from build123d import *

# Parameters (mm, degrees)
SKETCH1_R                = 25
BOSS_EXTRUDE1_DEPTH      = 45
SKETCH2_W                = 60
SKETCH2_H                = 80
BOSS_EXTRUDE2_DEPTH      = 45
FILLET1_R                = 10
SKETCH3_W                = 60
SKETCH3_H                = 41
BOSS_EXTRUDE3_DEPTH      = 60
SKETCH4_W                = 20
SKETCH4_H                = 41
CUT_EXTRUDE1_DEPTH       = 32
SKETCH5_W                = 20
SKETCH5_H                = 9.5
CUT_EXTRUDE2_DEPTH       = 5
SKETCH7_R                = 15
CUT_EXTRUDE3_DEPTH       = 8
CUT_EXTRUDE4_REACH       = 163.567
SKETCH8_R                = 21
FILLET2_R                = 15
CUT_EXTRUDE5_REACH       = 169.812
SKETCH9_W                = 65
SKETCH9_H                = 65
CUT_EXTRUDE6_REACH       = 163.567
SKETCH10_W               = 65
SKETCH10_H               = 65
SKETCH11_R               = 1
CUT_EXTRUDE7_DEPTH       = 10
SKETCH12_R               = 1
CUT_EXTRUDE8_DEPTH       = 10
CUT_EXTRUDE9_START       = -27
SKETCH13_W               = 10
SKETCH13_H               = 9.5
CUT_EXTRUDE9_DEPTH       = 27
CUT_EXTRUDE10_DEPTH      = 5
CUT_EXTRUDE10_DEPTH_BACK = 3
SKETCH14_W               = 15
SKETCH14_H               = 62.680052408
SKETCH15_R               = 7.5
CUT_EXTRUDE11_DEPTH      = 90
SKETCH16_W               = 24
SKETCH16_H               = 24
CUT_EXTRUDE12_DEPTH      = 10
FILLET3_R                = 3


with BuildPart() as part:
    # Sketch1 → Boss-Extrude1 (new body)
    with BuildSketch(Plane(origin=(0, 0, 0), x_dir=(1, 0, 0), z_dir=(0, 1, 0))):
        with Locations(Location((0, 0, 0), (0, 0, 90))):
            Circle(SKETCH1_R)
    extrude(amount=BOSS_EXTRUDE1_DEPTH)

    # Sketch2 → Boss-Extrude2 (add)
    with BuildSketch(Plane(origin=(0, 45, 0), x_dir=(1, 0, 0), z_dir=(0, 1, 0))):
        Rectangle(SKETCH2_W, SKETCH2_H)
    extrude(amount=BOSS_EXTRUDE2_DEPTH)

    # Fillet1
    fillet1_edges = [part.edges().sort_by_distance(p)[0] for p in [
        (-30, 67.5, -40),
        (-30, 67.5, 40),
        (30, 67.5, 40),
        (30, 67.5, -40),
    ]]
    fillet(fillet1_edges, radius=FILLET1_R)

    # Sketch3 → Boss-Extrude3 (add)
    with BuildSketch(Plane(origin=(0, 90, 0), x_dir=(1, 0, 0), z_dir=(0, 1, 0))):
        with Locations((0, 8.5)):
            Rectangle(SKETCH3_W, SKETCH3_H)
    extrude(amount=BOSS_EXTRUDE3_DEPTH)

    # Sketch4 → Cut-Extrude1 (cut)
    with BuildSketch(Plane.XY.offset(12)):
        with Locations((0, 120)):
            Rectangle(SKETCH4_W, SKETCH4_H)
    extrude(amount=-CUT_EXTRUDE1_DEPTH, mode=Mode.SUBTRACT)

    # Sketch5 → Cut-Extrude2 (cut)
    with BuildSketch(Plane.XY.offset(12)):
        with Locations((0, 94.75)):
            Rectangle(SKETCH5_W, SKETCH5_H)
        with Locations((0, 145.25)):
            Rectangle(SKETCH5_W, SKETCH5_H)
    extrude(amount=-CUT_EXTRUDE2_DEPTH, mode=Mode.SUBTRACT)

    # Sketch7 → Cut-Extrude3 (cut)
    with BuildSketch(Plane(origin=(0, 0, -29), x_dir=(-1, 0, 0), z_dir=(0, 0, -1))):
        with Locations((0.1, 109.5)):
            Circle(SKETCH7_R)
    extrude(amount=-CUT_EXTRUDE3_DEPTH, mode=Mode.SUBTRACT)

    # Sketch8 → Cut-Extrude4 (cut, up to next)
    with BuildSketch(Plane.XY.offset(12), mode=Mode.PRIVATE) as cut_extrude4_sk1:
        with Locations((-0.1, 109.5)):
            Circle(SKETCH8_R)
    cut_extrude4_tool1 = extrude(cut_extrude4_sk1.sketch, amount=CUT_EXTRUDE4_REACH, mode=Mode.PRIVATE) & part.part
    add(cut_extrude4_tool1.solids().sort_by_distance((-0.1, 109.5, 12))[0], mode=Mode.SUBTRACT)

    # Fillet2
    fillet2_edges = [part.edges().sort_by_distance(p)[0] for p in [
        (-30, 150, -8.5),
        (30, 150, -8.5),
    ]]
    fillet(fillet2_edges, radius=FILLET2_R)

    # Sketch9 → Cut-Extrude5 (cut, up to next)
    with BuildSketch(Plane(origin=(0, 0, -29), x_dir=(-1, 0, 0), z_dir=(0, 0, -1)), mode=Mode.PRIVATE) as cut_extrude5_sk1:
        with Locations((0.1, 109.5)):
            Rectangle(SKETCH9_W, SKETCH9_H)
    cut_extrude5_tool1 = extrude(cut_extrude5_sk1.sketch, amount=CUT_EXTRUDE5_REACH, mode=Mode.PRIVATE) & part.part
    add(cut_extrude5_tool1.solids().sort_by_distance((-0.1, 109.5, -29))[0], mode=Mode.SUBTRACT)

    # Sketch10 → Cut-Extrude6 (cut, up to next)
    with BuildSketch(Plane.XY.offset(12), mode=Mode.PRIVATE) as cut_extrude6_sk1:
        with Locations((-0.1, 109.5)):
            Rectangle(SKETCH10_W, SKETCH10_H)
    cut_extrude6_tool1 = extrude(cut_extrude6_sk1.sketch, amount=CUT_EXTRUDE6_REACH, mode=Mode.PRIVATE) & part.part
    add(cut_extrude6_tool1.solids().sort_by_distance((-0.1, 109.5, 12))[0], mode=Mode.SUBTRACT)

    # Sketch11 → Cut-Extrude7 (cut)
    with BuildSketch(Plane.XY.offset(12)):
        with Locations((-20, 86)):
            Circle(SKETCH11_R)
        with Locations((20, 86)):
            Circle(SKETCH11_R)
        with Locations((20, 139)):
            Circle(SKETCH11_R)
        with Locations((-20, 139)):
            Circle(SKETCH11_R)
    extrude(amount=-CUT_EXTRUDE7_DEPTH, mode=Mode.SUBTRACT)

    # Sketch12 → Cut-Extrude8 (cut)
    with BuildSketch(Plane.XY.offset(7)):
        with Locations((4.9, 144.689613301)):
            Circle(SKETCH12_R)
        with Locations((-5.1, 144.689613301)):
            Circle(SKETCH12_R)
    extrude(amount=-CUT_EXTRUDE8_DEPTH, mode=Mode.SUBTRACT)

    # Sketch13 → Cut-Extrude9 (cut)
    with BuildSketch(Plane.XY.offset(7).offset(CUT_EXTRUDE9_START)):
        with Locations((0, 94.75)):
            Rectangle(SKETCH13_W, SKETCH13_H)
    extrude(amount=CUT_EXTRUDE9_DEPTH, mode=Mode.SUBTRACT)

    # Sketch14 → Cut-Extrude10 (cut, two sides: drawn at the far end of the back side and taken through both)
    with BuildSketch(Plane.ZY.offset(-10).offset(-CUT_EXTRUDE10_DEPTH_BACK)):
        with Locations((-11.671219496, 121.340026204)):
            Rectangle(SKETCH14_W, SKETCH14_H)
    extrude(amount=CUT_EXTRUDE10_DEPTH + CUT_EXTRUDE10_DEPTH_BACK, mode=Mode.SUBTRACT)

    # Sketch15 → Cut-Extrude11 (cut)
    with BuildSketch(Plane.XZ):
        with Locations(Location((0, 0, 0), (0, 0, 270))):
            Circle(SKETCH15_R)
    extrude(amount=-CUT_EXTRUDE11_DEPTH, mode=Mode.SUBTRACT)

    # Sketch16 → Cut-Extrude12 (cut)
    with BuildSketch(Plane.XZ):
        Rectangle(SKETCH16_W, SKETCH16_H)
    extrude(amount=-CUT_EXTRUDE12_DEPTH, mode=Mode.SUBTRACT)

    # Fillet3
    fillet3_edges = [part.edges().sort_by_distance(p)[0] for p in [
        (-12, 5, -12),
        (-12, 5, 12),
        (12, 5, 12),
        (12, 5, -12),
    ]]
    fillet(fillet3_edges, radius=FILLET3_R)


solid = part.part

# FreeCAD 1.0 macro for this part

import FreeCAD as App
import Part
import Sketcher

V = App.Vector


def edges_at(feature, points):
    """Names of the edges that pass closest to the given points."""
    edges = feature.Shape.Edges
    near = lambda p: min(range(len(edges)), key=lambda i: edges[i].distToShape(Part.Vertex(*p))[0])
    return sorted({f"Edge{near(p) + 1}" for p in points})


def add_polygon(sketch, points):
    """Adds a closed chain of lines whose ends are joined by coincident constraints."""
    first, n = sketch.GeometryCount, len(points)
    for a, b in zip(points, points[1:] + points[:1]):
        sketch.addGeometry(Part.LineSegment(App.Vector(*a, 0), App.Vector(*b, 0)), False)
    for i in range(n):
        sketch.addConstraint(Sketcher.Constraint("Coincident", first + i, 2, first + (i + 1) % n, 1))

doc = App.newDocument("Part")
body = doc.addObject("PartDesign::Body", "Body")

sketch1 = body.newObject("Sketcher::SketchObject", "Sketch")
sketch1.AttachmentSupport = (doc.getObject("XZ_Plane"), [""])
sketch1.MapMode = "FlatFace"
sketch1.addGeometry(Part.Circle(V(0, 0, 0), V(0, 0, 1), 25), False)
sketch1.addConstraint([
    Sketcher.Constraint("Coincident", 0, 3, -1, 1),
    Sketcher.Constraint("Diameter", 0, 50.0),
])
pad1 = body.newObject("PartDesign::Pad", "Pad")
pad1.Profile = sketch1
pad1.Length = 45
pad1.Reversed = True

sketch2 = body.newObject("Sketcher::SketchObject", "Sketch001")
sketch2.AttachmentSupport = (doc.getObject("XZ_Plane"), [""])
sketch2.MapMode = "FlatFace"
sketch2.AttachmentOffset = App.Placement(V(0, 0, -45), App.Rotation())
add_polygon(sketch2, [(-30, -40), (-30, 40), (30, 40), (30, -40)])
sketch2.addConstraint([
    Sketcher.Constraint("Vertical", 0),
    Sketcher.Constraint("Horizontal", 1),
    Sketcher.Constraint("Vertical", 2),
    Sketcher.Constraint("Horizontal", 3),
    Sketcher.Constraint("Symmetric", 0, 2, 2, 2, -1, 1),
    Sketcher.Constraint("DistanceX", 1, 1, 1, 2, 60.0),
    Sketcher.Constraint("DistanceY", 0, 1, 0, 2, 80.0),
])
pad2 = body.newObject("PartDesign::Pad", "Pad001")
pad2.Profile = sketch2
pad2.Length = 45
pad2.Reversed = True
doc.recompute()

fillet = body.newObject("PartDesign::Fillet", "Fillet")
fillet.Base = (pad2, edges_at(pad2, [
    (-30, 67.5, -40),
    (-30, 67.5, 40),
    (30, 67.5, 40),
    (30, 67.5, -40),
]))
fillet.Radius = 10

sketch3 = body.newObject("Sketcher::SketchObject", "Sketch002")
sketch3.AttachmentSupport = (doc.getObject("XZ_Plane"), [""])
sketch3.MapMode = "FlatFace"
sketch3.AttachmentOffset = App.Placement(V(0, 0, -90), App.Rotation())
add_polygon(sketch3, [(-30, -29), (-30, 12), (30, 12), (30, -29)])
sketch3.addConstraint([
    Sketcher.Constraint("Vertical", 0),
    Sketcher.Constraint("Horizontal", 1),
    Sketcher.Constraint("Vertical", 2),
    Sketcher.Constraint("Horizontal", 3),
    Sketcher.Constraint("DistanceX", 1, 1, 1, 2, 60.0),
    Sketcher.Constraint("DistanceY", 0, 1, 0, 2, 41.0),
    Sketcher.Constraint("DistanceX", 0, 2, -1, 1, 30.0),
    Sketcher.Constraint("DistanceY", -1, 1, 0, 2, 12.0),
])
pad3 = body.newObject("PartDesign::Pad", "Pad002")
pad3.Profile = sketch3
pad3.Length = 60
pad3.Reversed = True

sketch4 = body.newObject("Sketcher::SketchObject", "Sketch003")
sketch4.AttachmentSupport = (doc.getObject("XY_Plane"), [""])
sketch4.MapMode = "FlatFace"
sketch4.AttachmentOffset = App.Placement(V(0, 0, 12), App.Rotation())
add_polygon(sketch4, [(-10, 140.5), (-10, 99.5), (10, 99.5), (10, 140.5)])
sketch4.addConstraint([
    Sketcher.Constraint("Vertical", 0),
    Sketcher.Constraint("Horizontal", 1),
    Sketcher.Constraint("Vertical", 2),
    Sketcher.Constraint("Horizontal", 3),
    Sketcher.Constraint("DistanceX", 1, 1, 1, 2, 20.0),
    Sketcher.Constraint("DistanceY", 0, 2, 0, 1, 41.0),
    Sketcher.Constraint("DistanceX", 0, 2, -1, 1, 10.0),
    Sketcher.Constraint("DistanceY", -1, 1, 0, 2, 99.5),
])
pocket1 = body.newObject("PartDesign::Pocket", "Pocket")
pocket1.Profile = sketch4
pocket1.Length = 32

sketch5 = body.newObject("Sketcher::SketchObject", "Sketch004")
sketch5.AttachmentSupport = (doc.getObject("XY_Plane"), [""])
sketch5.MapMode = "FlatFace"
sketch5.AttachmentOffset = App.Placement(V(0, 0, 12), App.Rotation())
add_polygon(sketch5, [(-10, 99.5), (-10, 90), (10, 90), (10, 99.5)])
add_polygon(sketch5, [(-10, 150), (-10, 140.5), (10, 140.5), (10, 150)])
sketch5.addConstraint([
    Sketcher.Constraint("Vertical", 0),
    Sketcher.Constraint("Horizontal", 1),
    Sketcher.Constraint("Vertical", 2),
    Sketcher.Constraint("Horizontal", 3),
    Sketcher.Constraint("Vertical", 4),
    Sketcher.Constraint("Horizontal", 5),
    Sketcher.Constraint("Vertical", 6),
    Sketcher.Constraint("Horizontal", 7),
    Sketcher.Constraint("Vertical", 3, 2, 4, 2),
    Sketcher.Constraint("Vertical", 2, 2, 5, 2),
    Sketcher.Constraint("Equal", 2, 4),
    Sketcher.Constraint("DistanceX", 1, 1, 1, 2, 20.0),
    Sketcher.Constraint("DistanceY", 0, 2, 0, 1, 9.5),
    Sketcher.Constraint("DistanceX", 0, 2, -1, 1, 10.0),
    Sketcher.Constraint("DistanceY", -1, 1, 0, 2, 90.0),
    Sketcher.Constraint("DistanceY", -1, 1, 6, 2, 150.0),
])
pocket2 = body.newObject("PartDesign::Pocket", "Pocket001")
pocket2.Profile = sketch5
pocket2.Length = 5

sketch6 = body.newObject("Sketcher::SketchObject", "Sketch005")
sketch6.AttachmentSupport = (doc.getObject("XY_Plane"), [""])
sketch6.MapMode = "FlatFace"
sketch6.AttachmentOffset = App.Placement(V(0, 0, -29), App.Rotation())
sketch6.addGeometry(Part.Circle(V(-0.1, 109.5, 0), V(0, 0, 1), 15), False)
sketch6.addConstraint([
    Sketcher.Constraint("Diameter", 0, 30.0),
    Sketcher.Constraint("DistanceX", 0, 3, -1, 1, 0.1),
    Sketcher.Constraint("DistanceY", -1, 1, 0, 3, 109.5),
])
pocket3 = body.newObject("PartDesign::Pocket", "Pocket002")
pocket3.Profile = sketch6
pocket3.Length = 8
pocket3.Reversed = True

sketch7 = body.newObject("Sketcher::SketchObject", "Sketch006")
sketch7.AttachmentSupport = (doc.getObject("XY_Plane"), [""])
sketch7.MapMode = "FlatFace"
sketch7.AttachmentOffset = App.Placement(V(0, 0, 12), App.Rotation())
sketch7.addGeometry(Part.Circle(V(-0.1, 109.5, 0), V(0, 0, 1), 21), False)
sketch7.addConstraint([
    Sketcher.Constraint("Diameter", 0, 42.0),
    Sketcher.Constraint("DistanceX", 0, 3, -1, 1, 0.1),
    Sketcher.Constraint("DistanceY", -1, 1, 0, 3, 109.5),
])
pocket4 = body.newObject("PartDesign::Pocket", "Pocket003")
pocket4.Profile = sketch7
pocket4.Length = 28
pocket4.Reversed = True
doc.recompute()

fillet2 = body.newObject("PartDesign::Fillet", "Fillet001")
fillet2.Base = (pocket4, edges_at(pocket4, [(-30, 150, -8.5), (30, 150, -8.5)]))
fillet2.Radius = 15

sketch8 = body.newObject("Sketcher::SketchObject", "Sketch007")
sketch8.AttachmentSupport = (doc.getObject("XY_Plane"), [""])
sketch8.MapMode = "FlatFace"
sketch8.AttachmentOffset = App.Placement(V(0, 0, -29), App.Rotation())
add_polygon(sketch8, [(32.4, 142), (32.4, 77), (-32.6, 77), (-32.6, 142)])
sketch8.addConstraint([
    Sketcher.Constraint("Vertical", 0),
    Sketcher.Constraint("Horizontal", 1),
    Sketcher.Constraint("Vertical", 2),
    Sketcher.Constraint("Horizontal", 3),
    Sketcher.Constraint("Equal", 3, 0),
    Sketcher.Constraint("DistanceX", 1, 2, 1, 1, 65.0),
    Sketcher.Constraint("DistanceY", -1, 1, 0, 2, 77.0),
    Sketcher.Constraint("DistanceX", -1, 1, 0, 2, 32.4),
])
pocket5 = body.newObject("PartDesign::Pocket", "Pocket004")
pocket5.Profile = sketch8
pocket5.Length = 11

sketch9 = body.newObject("Sketcher::SketchObject", "Sketch008")
sketch9.AttachmentSupport = (doc.getObject("XY_Plane"), [""])
sketch9.MapMode = "FlatFace"
sketch9.AttachmentOffset = App.Placement(V(0, 0, 12), App.Rotation())
add_polygon(sketch9, [(-32.6, 142), (-32.6, 77), (32.4, 77), (32.4, 142)])
sketch9.addConstraint([
    Sketcher.Constraint("Vertical", 0),
    Sketcher.Constraint("Horizontal", 1),
    Sketcher.Constraint("Vertical", 2),
    Sketcher.Constraint("Horizontal", 3),
    Sketcher.Constraint("Equal", 3, 0),
    Sketcher.Constraint("DistanceX", 1, 1, 1, 2, 65.0),
    Sketcher.Constraint("DistanceY", -1, 1, 0, 2, 77.0),
    Sketcher.Constraint("DistanceX", 0, 2, -1, 1, 32.6),
])
pocket6 = body.newObject("PartDesign::Pocket", "Pocket005")
pocket6.Profile = sketch9
pocket6.Length = 28
pocket6.Reversed = True

sketch10 = body.newObject("Sketcher::SketchObject", "Sketch009")
sketch10.AttachmentSupport = (doc.getObject("XY_Plane"), [""])
sketch10.MapMode = "FlatFace"
sketch10.AttachmentOffset = App.Placement(V(0, 0, 12), App.Rotation())
sketch10.addGeometry([
    Part.Circle(V(-20, 86, 0), V(0, 0, 1), 1),
    Part.Circle(V(20, 86, 0), V(0, 0, 1), 1),
    Part.Circle(V(20, 139, 0), V(0, 0, 1), 1),
    Part.Circle(V(-20, 139, 0), V(0, 0, 1), 1),
], False)
sketch10.addConstraint([
    Sketcher.Constraint("Equal", 0, 1),
    Sketcher.Constraint("Equal", 1, 2),
    Sketcher.Constraint("Equal", 2, 3),
    Sketcher.Constraint("Symmetric", 0, 3, 1, 3, -2),
    Sketcher.Constraint("Symmetric", 2, 3, 3, 3, -2),
    Sketcher.Constraint("Vertical", 1, 3, 2, 3),
    Sketcher.Constraint("Diameter", 0, 2.0),
    Sketcher.Constraint("DistanceX", 0, 3, -1, 1, 20.0),
    Sketcher.Constraint("DistanceY", -1, 1, 0, 3, 86.0),
    Sketcher.Constraint("DistanceY", -1, 1, 2, 3, 139.0),
])
pocket7 = body.newObject("PartDesign::Pocket", "Pocket006")
pocket7.Profile = sketch10
pocket7.Length = 10

sketch11 = body.newObject("Sketcher::SketchObject", "Sketch010")
sketch11.AttachmentSupport = (doc.getObject("XY_Plane"), [""])
sketch11.MapMode = "FlatFace"
sketch11.AttachmentOffset = App.Placement(V(0, 0, 7), App.Rotation())
sketch11.addGeometry([
    Part.Circle(V(4.9, 144.689613, 0), V(0, 0, 1), 1),
    Part.Circle(V(-5.1, 144.689613, 0), V(0, 0, 1), 1),
], False)
sketch11.addConstraint([
    Sketcher.Constraint("Equal", 0, 1),
    Sketcher.Constraint("Horizontal", 0, 3, 1, 3),
    Sketcher.Constraint("Diameter", 0, 2.0),
    Sketcher.Constraint("DistanceX", 1, 3, 0, 3, 10.0),
    Sketcher.Constraint("DistanceX", -1, 1, 0, 3, 4.9),
    Sketcher.Constraint("DistanceY", -1, 1, 0, 3, 144.689613),
])
pocket8 = body.newObject("PartDesign::Pocket", "Pocket007")
pocket8.Profile = sketch11
pocket8.Length = 10

sketch12 = body.newObject("Sketcher::SketchObject", "Sketch011")
sketch12.AttachmentSupport = (doc.getObject("XY_Plane"), [""])
sketch12.MapMode = "FlatFace"
sketch12.AttachmentOffset = App.Placement(V(0, 0, -20), App.Rotation())
add_polygon(sketch12, [(-5, 99.5), (-5, 90), (5, 90), (5, 99.5)])
sketch12.addConstraint([
    Sketcher.Constraint("Vertical", 0),
    Sketcher.Constraint("Horizontal", 1),
    Sketcher.Constraint("Vertical", 2),
    Sketcher.Constraint("Horizontal", 3),
    Sketcher.Constraint("DistanceX", 1, 1, 1, 2, 10.0),
    Sketcher.Constraint("DistanceY", 0, 2, 0, 1, 9.5),
    Sketcher.Constraint("DistanceX", 0, 2, -1, 1, 5.0),
    Sketcher.Constraint("DistanceY", -1, 1, 0, 2, 90.0),
])
pocket9 = body.newObject("PartDesign::Pocket", "Pocket008")
pocket9.Profile = sketch12
pocket9.Length = 27
pocket9.Reversed = True

sketch13 = body.newObject("Sketcher::SketchObject", "Sketch012")
sketch13.AttachmentSupport = (doc.getObject("YZ_Plane"), [""])
sketch13.MapMode = "FlatFace"
sketch13.AttachmentOffset = App.Placement(V(0, 0, 10), App.Rotation())
add_polygon(sketch13, [(152.680052, -19.171219), (90, -19.171219), (90, -4.171219), (152.680052, -4.171219)])
sketch13.addConstraint([
    Sketcher.Constraint("Horizontal", 0),
    Sketcher.Constraint("Vertical", 1),
    Sketcher.Constraint("Horizontal", 2),
    Sketcher.Constraint("Vertical", 3),
    Sketcher.Constraint("DistanceY", 1, 1, 1, 2, 15.0),
    Sketcher.Constraint("DistanceX", -1, 1, 0, 2, 90.0),
    Sketcher.Constraint("DistanceX", 0, 2, 0, 1, 62.680052),
    Sketcher.Constraint("DistanceY", 0, 2, -1, 1, 19.171219),
])
pocket10 = body.newObject("PartDesign::Pocket", "Pocket009")
pocket10.Profile = sketch13
pocket10.Type = "TwoLengths"
pocket10.Length = 5
pocket10.Length2 = 3

sketch14 = body.newObject("Sketcher::SketchObject", "Sketch013")
sketch14.AttachmentSupport = (doc.getObject("XZ_Plane"), [""])
sketch14.MapMode = "FlatFace"
sketch14.addGeometry(Part.Circle(V(0, 0, 0), V(0, 0, 1), 7.5), False)
sketch14.addConstraint([
    Sketcher.Constraint("Coincident", 0, 3, -1, 1),
    Sketcher.Constraint("Diameter", 0, 15.0),
])
pocket11 = body.newObject("PartDesign::Pocket", "Pocket010")
pocket11.Profile = sketch14
pocket11.Length = 90

sketch15 = body.newObject("Sketcher::SketchObject", "Sketch014")
sketch15.AttachmentSupport = (doc.getObject("XZ_Plane"), [""])
sketch15.MapMode = "FlatFace"
add_polygon(sketch15, [(-12, 12), (-12, -12), (12, -12), (12, 12)])
sketch15.addConstraint([
    Sketcher.Constraint("Vertical", 0),
    Sketcher.Constraint("Horizontal", 1),
    Sketcher.Constraint("Vertical", 2),
    Sketcher.Constraint("Horizontal", 3),
    Sketcher.Constraint("Symmetric", 0, 2, 2, 2, -1, 1),
    Sketcher.Constraint("Equal", 3, 0),
    Sketcher.Constraint("DistanceX", 1, 1, 1, 2, 24.0),
])
pocket12 = body.newObject("PartDesign::Pocket", "Pocket011")
pocket12.Profile = sketch15
pocket12.Length = 10
doc.recompute()

fillet3 = body.newObject("PartDesign::Fillet", "Fillet002")
fillet3.Base = (pocket12, edges_at(pocket12, [
    (-12, 5, -12),
    (-12, 5, 12),
    (12, 5, 12),
    (12, 5, -12),
]))
fillet3.Radius = 3

doc.recompute()
